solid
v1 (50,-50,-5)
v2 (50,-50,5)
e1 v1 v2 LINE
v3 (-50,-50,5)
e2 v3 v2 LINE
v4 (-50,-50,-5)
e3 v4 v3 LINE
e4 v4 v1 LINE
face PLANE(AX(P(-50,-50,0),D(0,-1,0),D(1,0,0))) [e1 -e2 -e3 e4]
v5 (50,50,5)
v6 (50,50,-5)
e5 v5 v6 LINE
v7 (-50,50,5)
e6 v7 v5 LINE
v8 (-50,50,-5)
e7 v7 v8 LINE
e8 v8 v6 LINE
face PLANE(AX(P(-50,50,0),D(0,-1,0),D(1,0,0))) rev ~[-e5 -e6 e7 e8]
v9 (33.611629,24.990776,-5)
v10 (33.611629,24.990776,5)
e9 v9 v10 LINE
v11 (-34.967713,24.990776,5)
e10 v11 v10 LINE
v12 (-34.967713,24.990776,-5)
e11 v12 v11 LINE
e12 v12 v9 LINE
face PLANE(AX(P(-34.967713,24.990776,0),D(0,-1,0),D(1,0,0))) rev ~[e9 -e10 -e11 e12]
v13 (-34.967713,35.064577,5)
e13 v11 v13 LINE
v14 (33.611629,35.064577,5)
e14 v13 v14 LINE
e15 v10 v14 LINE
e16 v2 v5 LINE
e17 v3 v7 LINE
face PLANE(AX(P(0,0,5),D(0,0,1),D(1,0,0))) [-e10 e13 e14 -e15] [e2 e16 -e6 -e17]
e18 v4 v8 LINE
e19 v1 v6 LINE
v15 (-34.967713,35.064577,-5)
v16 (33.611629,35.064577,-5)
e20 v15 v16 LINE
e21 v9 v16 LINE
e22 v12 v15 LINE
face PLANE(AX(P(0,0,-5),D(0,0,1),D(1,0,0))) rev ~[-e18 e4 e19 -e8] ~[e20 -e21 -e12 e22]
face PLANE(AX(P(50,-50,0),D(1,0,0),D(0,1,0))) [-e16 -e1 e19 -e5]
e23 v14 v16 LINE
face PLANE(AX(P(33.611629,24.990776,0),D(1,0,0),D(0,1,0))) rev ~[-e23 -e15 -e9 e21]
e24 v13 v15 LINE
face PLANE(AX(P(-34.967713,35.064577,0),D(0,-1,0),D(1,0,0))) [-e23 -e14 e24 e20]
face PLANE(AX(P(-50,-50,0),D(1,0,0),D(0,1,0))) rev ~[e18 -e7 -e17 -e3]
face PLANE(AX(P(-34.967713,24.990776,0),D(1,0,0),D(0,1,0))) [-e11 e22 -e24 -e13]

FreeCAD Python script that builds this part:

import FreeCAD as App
import Part
import Sketcher


def add_polygon(sketch, points):
    """Adds a closed chain of lines whose ends are joined by coincident constraints."""
    first, n = sketch.GeometryCount, len(points)
    for a, b in zip(points, points[1:] + points[:1]):
        sketch.addGeometry(Part.LineSegment(App.Vector(*a, 0), App.Vector(*b, 0)), False)
    for i in range(n):
        sketch.addConstraint(Sketcher.Constraint("Coincident", first + i, 2, first + (i + 1) % n, 1))

doc = App.newDocument("Part")
body = doc.addObject("PartDesign::Body", "Body")

sketch1 = body.newObject("Sketcher::SketchObject", "Sketch")
sketch1.AttachmentSupport = (doc.getObject("XY_Plane"), [""])
sketch1.MapMode = "FlatFace"
add_polygon(sketch1, [(-50, 50), (-50, -50), (50, -50), (50, 50)])
sketch1.addConstraint([
    Sketcher.Constraint("Vertical", 0),
    Sketcher.Constraint("Horizontal", 1),
    Sketcher.Constraint("Vertical", 2),
    Sketcher.Constraint("Horizontal", 3),
    Sketcher.Constraint("Symmetric", 0, 2, 2, 2, -1, 1),
    Sketcher.Constraint("Equal", 3, 0),
    Sketcher.Constraint("DistanceX", 1, 1, 1, 2, 100.0),
])
pad1 = body.newObject("PartDesign::Pad", "Pad")
pad1.Profile = sketch1
pad1.Length = 10
pad1.Midplane = True

sketch2 = body.newObject("Sketcher::SketchObject", "Sketch001")
sketch2.AttachmentSupport = (doc.getObject("XY_Plane"), [""])
sketch2.MapMode = "FlatFace"
add_polygon(sketch2, [(-35, 35), (-35, 25), (34, 25), (34, 35)])
sketch2.addConstraint([
    Sketcher.Constraint("Vertical", 0),
    Sketcher.Constraint("Horizontal", 1),
    Sketcher.Constraint("Vertical", 2),
    Sketcher.Constraint("Horizontal", 3),
    Sketcher.Constraint("DistanceY", 0, 2, 0, 1, 10.073801),
    Sketcher.Constraint("DistanceX", 1, 1, 1, 2, 68.579342),
    Sketcher.Constraint("DistanceX", -1, 1, 1, 2, 33.611629),
    Sketcher.Constraint("DistanceY", -1, 1, 0, 2, 24.990776),
])
pocket1 = body.newObject("PartDesign::Pocket", "Pocket")
pocket1.Profile = sketch2
pocket1.Length = 25
pocket1.Midplane = True

doc.recompute()
